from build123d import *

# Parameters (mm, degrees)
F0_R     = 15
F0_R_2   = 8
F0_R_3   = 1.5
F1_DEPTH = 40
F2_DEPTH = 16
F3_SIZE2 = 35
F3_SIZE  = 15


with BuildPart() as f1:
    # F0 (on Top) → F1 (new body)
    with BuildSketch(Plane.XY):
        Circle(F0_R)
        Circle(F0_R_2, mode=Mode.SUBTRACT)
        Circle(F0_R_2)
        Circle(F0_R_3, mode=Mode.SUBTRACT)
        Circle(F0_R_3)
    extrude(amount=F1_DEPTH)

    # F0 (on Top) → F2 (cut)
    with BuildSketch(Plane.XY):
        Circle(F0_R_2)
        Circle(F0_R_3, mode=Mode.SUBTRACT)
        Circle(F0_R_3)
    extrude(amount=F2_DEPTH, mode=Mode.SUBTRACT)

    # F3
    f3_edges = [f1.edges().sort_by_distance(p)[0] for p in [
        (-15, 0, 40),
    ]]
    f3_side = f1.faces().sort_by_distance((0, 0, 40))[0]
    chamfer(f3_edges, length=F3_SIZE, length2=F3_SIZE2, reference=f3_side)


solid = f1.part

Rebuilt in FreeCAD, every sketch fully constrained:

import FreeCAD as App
import Part
import Sketcher

V = App.Vector


def edges_at(feature, points):
    """Names of the edges that pass closest to the given points."""
    edges = feature.Shape.Edges
    near = lambda p: min(range(len(edges)), key=lambda i: edges[i].distToShape(Part.Vertex(*p))[0])
    return sorted({f"Edge{near(p) + 1}" for p in points})

doc = App.newDocument("Part")
body = doc.addObject("PartDesign::Body", "Body")

# Sketch on XY plane
sketch1 = body.newObject("Sketcher::SketchObject", "Sketch")
sketch1.AttachmentSupport = (doc.getObject("XY_Plane"), [""])
sketch1.MapMode = "FlatFace"
sketch1.addGeometry(Part.Circle(V(0, 0, 0), V(0, 0, 1), 15), False)
sketch1.addConstraint(Sketcher.Constraint("Coincident", 0, 3, -1, 1))
sketch1.addConstraint(Sketcher.Constraint("Diameter", 0, 30.0))
pad1 = body.newObject("PartDesign::Pad", "Pad")
pad1.Profile = sketch1
pad1.Length = 40

# Sketch on XY plane
sketch2 = body.newObject("Sketcher::SketchObject", "Sketch001")
sketch2.AttachmentSupport = (doc.getObject("XY_Plane"), [""])
sketch2.MapMode = "FlatFace"
sketch2.addGeometry(Part.Circle(V(0, 0, 0), V(0, 0, 1), 8), False)
sketch2.addConstraint(Sketcher.Constraint("Coincident", 0, 3, -1, 1))
sketch2.addConstraint(Sketcher.Constraint("Diameter", 0, 16.0))
pocket1 = body.newObject("PartDesign::Pocket", "Pocket")
pocket1.Profile = sketch2
pocket1.Length = 16
pocket1.Reversed = True
doc.recompute()

chamfer = body.newObject("PartDesign::Chamfer", "Chamfer")
chamfer.Base = (pocket1, edges_at(pocket1, [(-15, 0, 40)]))
chamfer.ChamferType = "Two distances"
chamfer.Size = 15
chamfer.Size2 = 35
chamfer.FlipDirection = True

doc.recompute()
